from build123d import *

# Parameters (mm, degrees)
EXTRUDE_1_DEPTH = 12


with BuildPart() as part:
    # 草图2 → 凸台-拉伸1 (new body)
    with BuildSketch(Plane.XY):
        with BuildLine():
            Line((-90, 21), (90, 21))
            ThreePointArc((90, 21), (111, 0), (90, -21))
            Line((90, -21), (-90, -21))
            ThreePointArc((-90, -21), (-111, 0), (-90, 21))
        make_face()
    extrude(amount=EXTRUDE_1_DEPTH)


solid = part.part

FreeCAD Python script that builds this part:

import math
import FreeCAD as App
import Part
import Sketcher
from FreeCAD import Vector
Q = App.Units.Quantity

doc = App.newDocument("Part")
body = doc.addObject("PartDesign::Body", "Body")

sketch1 = body.newObject("Sketcher::SketchObject", "Sketch")
sketch1.AttachmentSupport = (doc.getObject("XY_Plane"), [""])
sketch1.MapMode = "FlatFace"
sketch1.addGeometry([
    Part.LineSegment(Vector(90, 21, 0), Vector(-90, 21, 0)),
    Part.ArcOfCircle(Part.Circle(Vector(-90, 0, 0), Vector(0, 0, 1), 21), math.radians(90), math.radians(270)),
    Part.LineSegment(Vector(-90, -21, 0), Vector(90, -21, 0)),
    Part.ArcOfCircle(Part.Circle(Vector(90, 0, 0), Vector(0, 0, 1), 21), math.radians(-90), math.radians(90)),
], False)
sketch1.addConstraint([
    Sketcher.Constraint("Tangent", 0, 2, 1, 1),
    Sketcher.Constraint("Tangent", 1, 2, 2, 1),
    Sketcher.Constraint("Tangent", 2, 2, 3, 1),
    Sketcher.Constraint("Tangent", 3, 2, 0, 1),
    Sketcher.Constraint("Horizontal", 0),
    Sketcher.Constraint("Horizontal", 2),
    Sketcher.Constraint("Symmetric", 1, 3, 3, 3, -1, 1),
    Sketcher.Constraint("Radius", 1, Q("21 mm")),
    Sketcher.Constraint("DistanceX", 0, 2, 0, 1, Q("180 mm")),
])
pad1 = body.newObject("PartDesign::Pad", "Pad")
pad1.Profile = sketch1
pad1.Length = 12

doc.recompute()
